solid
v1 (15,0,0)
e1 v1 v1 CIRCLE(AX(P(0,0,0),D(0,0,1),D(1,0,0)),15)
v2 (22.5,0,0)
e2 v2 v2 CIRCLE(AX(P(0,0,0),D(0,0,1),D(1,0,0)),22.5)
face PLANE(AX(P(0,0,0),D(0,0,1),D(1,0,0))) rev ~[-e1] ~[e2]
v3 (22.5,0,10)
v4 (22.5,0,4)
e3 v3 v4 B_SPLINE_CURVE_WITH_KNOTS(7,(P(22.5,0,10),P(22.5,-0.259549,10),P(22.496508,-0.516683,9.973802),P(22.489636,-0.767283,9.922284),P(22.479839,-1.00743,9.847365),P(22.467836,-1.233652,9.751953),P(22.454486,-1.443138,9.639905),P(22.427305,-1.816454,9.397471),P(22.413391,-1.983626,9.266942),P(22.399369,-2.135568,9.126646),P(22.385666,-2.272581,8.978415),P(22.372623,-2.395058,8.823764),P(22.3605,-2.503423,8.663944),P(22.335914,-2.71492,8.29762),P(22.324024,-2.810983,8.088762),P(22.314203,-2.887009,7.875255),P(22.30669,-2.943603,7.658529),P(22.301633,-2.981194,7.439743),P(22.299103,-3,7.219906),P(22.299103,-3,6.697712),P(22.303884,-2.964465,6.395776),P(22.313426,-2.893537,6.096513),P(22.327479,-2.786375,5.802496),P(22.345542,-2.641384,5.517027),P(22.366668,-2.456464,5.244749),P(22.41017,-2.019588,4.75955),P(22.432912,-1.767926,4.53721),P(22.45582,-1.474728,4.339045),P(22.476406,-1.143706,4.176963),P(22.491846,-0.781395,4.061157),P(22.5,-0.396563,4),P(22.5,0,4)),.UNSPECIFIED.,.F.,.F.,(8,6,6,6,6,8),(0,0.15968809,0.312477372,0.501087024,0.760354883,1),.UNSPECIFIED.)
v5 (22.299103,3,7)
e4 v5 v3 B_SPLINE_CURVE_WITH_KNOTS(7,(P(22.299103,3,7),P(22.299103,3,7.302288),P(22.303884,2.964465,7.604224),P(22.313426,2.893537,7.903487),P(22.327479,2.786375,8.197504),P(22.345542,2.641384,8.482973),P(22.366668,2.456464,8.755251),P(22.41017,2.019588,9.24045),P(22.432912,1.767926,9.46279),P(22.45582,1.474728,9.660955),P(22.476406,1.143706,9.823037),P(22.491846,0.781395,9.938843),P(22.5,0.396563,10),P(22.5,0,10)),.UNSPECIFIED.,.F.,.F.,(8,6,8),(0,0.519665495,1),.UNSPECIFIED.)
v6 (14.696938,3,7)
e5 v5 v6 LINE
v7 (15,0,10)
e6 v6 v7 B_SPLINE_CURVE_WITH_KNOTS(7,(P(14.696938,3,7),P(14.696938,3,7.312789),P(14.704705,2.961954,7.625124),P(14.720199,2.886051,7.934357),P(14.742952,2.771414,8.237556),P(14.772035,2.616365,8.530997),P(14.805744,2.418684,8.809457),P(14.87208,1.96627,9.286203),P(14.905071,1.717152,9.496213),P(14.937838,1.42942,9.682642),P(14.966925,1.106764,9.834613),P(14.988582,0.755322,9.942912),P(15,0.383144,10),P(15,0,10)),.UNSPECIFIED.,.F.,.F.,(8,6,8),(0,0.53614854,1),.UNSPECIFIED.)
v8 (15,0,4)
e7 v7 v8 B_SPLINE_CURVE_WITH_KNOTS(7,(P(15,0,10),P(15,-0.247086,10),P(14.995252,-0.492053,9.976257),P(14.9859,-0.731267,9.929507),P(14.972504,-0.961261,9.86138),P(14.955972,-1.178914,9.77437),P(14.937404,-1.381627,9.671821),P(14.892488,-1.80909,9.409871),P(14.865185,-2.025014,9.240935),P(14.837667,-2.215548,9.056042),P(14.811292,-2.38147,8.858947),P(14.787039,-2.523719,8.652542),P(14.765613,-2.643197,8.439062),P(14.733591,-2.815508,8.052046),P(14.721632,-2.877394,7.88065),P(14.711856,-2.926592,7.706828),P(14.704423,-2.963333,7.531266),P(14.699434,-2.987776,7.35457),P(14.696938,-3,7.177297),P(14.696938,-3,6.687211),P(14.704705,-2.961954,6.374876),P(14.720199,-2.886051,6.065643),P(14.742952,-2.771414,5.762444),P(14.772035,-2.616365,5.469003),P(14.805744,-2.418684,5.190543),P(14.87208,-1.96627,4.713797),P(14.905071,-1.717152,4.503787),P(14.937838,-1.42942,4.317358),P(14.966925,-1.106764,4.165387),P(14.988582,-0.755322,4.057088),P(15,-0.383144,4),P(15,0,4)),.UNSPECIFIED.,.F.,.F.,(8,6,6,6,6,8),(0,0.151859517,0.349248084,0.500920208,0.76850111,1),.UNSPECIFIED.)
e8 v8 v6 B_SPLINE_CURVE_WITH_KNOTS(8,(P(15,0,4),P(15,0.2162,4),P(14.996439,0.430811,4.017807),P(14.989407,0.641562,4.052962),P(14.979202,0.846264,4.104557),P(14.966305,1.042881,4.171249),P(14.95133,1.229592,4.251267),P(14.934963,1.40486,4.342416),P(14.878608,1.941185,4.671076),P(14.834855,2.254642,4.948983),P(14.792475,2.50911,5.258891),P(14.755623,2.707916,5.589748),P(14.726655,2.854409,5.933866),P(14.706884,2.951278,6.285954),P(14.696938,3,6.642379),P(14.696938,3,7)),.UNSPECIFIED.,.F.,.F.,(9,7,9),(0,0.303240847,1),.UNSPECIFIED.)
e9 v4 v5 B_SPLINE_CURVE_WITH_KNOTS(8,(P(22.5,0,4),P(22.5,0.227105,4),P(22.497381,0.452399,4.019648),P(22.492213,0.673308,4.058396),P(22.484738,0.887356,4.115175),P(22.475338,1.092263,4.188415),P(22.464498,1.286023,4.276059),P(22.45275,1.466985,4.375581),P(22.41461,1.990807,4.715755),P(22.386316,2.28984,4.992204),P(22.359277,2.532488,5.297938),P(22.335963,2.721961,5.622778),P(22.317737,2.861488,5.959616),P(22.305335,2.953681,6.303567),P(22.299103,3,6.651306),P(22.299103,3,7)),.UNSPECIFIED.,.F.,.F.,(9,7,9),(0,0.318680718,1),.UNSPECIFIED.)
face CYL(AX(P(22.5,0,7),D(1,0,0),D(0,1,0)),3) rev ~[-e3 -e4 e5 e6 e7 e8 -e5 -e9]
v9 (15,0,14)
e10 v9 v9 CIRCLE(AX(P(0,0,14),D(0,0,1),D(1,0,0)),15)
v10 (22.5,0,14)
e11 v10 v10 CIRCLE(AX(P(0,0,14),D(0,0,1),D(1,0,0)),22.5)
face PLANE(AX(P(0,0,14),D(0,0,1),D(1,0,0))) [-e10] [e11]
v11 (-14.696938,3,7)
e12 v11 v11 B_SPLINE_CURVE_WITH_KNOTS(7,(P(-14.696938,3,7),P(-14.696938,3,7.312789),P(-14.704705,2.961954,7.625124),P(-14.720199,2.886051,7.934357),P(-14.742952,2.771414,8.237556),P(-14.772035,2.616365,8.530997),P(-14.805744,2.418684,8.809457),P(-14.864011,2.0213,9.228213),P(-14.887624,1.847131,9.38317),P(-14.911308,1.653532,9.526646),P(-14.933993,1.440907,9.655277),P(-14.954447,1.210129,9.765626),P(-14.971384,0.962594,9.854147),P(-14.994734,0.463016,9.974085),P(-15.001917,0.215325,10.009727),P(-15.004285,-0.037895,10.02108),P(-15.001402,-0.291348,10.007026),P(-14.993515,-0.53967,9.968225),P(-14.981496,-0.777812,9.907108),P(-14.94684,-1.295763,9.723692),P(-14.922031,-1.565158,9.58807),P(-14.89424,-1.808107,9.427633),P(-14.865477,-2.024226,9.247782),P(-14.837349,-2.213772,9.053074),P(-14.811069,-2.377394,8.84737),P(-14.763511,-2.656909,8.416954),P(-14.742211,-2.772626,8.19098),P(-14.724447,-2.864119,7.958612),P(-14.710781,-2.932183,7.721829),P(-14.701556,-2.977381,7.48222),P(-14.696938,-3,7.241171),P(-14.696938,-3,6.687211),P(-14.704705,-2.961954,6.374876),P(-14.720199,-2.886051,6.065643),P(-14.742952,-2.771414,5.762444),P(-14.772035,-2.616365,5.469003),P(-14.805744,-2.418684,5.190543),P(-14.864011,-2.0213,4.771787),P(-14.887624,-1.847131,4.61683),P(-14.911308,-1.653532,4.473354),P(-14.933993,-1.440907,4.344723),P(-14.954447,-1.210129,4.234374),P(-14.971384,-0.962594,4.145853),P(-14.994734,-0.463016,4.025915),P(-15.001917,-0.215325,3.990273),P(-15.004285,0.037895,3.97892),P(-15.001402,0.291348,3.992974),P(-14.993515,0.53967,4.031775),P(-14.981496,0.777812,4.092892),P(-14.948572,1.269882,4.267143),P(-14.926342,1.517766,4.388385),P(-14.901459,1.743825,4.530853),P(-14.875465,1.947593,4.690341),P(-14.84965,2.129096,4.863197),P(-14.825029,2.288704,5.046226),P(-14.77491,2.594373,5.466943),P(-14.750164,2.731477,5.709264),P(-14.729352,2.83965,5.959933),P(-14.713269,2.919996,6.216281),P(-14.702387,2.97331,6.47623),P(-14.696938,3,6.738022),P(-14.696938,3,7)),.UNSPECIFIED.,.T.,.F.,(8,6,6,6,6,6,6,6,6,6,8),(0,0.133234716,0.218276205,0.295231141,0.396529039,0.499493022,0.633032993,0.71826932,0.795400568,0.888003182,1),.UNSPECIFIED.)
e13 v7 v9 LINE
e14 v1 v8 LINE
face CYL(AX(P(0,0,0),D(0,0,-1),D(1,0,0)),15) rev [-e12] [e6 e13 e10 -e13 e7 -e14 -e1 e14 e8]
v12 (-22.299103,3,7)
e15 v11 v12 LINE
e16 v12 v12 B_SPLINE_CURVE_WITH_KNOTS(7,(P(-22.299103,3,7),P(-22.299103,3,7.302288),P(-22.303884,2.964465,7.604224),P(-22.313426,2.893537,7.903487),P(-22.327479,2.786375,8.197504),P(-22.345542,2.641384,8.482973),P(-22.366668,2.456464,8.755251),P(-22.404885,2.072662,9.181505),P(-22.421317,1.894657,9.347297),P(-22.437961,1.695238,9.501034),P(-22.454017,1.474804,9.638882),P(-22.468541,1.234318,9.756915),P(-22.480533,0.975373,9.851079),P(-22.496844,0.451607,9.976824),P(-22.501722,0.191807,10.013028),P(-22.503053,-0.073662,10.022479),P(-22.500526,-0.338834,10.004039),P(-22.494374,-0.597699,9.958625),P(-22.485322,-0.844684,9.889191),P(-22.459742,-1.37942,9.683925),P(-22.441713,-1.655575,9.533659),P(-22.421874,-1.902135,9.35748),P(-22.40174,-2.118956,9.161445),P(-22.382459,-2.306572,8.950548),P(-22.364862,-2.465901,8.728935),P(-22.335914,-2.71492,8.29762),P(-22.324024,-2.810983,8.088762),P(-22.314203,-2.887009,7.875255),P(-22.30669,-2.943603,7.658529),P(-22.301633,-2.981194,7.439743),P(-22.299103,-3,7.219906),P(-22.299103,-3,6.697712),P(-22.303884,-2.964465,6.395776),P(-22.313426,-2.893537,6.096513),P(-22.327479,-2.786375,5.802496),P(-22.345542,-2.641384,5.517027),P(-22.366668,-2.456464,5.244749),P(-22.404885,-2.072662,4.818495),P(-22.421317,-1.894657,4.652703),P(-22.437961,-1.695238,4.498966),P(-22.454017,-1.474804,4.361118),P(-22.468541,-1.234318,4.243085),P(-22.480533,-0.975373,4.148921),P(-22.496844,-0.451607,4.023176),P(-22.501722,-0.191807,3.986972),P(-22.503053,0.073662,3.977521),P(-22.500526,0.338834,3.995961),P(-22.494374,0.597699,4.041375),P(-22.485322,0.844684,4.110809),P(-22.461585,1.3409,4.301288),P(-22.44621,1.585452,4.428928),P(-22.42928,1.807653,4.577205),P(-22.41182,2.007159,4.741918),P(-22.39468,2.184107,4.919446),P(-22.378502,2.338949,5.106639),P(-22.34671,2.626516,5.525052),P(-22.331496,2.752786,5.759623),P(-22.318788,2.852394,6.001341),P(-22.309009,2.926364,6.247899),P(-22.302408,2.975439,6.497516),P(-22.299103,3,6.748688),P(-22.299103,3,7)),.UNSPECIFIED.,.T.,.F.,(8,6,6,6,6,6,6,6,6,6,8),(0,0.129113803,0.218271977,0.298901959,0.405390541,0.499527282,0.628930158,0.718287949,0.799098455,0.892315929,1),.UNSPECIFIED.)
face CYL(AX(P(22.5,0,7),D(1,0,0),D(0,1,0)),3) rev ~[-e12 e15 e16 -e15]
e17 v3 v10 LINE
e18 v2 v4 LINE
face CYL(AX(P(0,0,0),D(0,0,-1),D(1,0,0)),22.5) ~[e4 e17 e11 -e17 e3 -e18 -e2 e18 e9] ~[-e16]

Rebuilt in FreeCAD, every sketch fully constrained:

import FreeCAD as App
import Part
import Sketcher

V = App.Vector

doc = App.newDocument("Part")
params = doc.addObject("Spreadsheet::Sheet", "Params")
for row, (alias, value) in enumerate([
    ("sketch1_diameter", "45 mm"),
    ("sketch1_diameter2", "30 mm"),
    ("pad1_length", "14 mm"),
    ("sketch2_diameter", "6 mm"),
], start=1):
    params.set(f"A{row}", alias)
    params.set(f"B{row}", "=" + value)
    params.setAlias(f"B{row}", alias)

body = doc.addObject("PartDesign::Body", "Body")

# Sketch on XY plane
sketch1 = doc.addObject("Sketcher::SketchObject", "Sketch")
body.addObject(sketch1)
sketch1.AttachmentSupport = (doc.XY_Plane, [""])
sketch1.MapMode = "FlatFace"
sketch1.addGeometry([
    Part.Circle(V(0, 0, 0), V(0, 0, 1), 22),
    Part.Circle(V(0, 0, 0), V(0, 0, 1), 15),
], False)
sketch1.addConstraint([
    Sketcher.Constraint("Coincident", 0, 3, -1, 1),
    Sketcher.Constraint("Coincident", 1, 3, -1, 1),
    Sketcher.Constraint("Diameter", 0, 45.0),
    Sketcher.Constraint("Diameter", 1, 30.0),
])
sketch1.setExpression("Constraints[2]", "Params.sketch1_diameter")
sketch1.setExpression("Constraints[3]", "Params.sketch1_diameter2")
pad1 = doc.addObject("PartDesign::Pad", "Pad")
body.addObject(pad1)
pad1.Profile = sketch1
pad1.setExpression("Length", "Params.pad1_length")

# Sketch on YZ plane
sketch2 = doc.addObject("Sketcher::SketchObject", "Sketch001")
body.addObject(sketch2)
sketch2.AttachmentSupport = (doc.YZ_Plane, [""])
sketch2.MapMode = "FlatFace"
sketch2.AttachmentOffset = App.Placement(V(0, 0, 22.5), App.Rotation())
sketch2.addGeometry(Part.Circle(V(0, 7, 0), V(0, 0, 1), 3), False)
sketch2.addConstraint([
    Sketcher.Constraint("PointOnObject", 0, 3, -2),
    Sketcher.Constraint("Diameter", 0, 6.0),
    Sketcher.Constraint("DistanceY", -1, 1, 0, 3, 7.0),
])
sketch2.setExpression("Constraints[1]", "Params.sketch2_diameter")
pocket1 = doc.addObject("PartDesign::Pocket", "Pocket")
body.addObject(pocket1)
pocket1.Profile = sketch2
pocket1.Type = "ThroughAll"

doc.recompute()
